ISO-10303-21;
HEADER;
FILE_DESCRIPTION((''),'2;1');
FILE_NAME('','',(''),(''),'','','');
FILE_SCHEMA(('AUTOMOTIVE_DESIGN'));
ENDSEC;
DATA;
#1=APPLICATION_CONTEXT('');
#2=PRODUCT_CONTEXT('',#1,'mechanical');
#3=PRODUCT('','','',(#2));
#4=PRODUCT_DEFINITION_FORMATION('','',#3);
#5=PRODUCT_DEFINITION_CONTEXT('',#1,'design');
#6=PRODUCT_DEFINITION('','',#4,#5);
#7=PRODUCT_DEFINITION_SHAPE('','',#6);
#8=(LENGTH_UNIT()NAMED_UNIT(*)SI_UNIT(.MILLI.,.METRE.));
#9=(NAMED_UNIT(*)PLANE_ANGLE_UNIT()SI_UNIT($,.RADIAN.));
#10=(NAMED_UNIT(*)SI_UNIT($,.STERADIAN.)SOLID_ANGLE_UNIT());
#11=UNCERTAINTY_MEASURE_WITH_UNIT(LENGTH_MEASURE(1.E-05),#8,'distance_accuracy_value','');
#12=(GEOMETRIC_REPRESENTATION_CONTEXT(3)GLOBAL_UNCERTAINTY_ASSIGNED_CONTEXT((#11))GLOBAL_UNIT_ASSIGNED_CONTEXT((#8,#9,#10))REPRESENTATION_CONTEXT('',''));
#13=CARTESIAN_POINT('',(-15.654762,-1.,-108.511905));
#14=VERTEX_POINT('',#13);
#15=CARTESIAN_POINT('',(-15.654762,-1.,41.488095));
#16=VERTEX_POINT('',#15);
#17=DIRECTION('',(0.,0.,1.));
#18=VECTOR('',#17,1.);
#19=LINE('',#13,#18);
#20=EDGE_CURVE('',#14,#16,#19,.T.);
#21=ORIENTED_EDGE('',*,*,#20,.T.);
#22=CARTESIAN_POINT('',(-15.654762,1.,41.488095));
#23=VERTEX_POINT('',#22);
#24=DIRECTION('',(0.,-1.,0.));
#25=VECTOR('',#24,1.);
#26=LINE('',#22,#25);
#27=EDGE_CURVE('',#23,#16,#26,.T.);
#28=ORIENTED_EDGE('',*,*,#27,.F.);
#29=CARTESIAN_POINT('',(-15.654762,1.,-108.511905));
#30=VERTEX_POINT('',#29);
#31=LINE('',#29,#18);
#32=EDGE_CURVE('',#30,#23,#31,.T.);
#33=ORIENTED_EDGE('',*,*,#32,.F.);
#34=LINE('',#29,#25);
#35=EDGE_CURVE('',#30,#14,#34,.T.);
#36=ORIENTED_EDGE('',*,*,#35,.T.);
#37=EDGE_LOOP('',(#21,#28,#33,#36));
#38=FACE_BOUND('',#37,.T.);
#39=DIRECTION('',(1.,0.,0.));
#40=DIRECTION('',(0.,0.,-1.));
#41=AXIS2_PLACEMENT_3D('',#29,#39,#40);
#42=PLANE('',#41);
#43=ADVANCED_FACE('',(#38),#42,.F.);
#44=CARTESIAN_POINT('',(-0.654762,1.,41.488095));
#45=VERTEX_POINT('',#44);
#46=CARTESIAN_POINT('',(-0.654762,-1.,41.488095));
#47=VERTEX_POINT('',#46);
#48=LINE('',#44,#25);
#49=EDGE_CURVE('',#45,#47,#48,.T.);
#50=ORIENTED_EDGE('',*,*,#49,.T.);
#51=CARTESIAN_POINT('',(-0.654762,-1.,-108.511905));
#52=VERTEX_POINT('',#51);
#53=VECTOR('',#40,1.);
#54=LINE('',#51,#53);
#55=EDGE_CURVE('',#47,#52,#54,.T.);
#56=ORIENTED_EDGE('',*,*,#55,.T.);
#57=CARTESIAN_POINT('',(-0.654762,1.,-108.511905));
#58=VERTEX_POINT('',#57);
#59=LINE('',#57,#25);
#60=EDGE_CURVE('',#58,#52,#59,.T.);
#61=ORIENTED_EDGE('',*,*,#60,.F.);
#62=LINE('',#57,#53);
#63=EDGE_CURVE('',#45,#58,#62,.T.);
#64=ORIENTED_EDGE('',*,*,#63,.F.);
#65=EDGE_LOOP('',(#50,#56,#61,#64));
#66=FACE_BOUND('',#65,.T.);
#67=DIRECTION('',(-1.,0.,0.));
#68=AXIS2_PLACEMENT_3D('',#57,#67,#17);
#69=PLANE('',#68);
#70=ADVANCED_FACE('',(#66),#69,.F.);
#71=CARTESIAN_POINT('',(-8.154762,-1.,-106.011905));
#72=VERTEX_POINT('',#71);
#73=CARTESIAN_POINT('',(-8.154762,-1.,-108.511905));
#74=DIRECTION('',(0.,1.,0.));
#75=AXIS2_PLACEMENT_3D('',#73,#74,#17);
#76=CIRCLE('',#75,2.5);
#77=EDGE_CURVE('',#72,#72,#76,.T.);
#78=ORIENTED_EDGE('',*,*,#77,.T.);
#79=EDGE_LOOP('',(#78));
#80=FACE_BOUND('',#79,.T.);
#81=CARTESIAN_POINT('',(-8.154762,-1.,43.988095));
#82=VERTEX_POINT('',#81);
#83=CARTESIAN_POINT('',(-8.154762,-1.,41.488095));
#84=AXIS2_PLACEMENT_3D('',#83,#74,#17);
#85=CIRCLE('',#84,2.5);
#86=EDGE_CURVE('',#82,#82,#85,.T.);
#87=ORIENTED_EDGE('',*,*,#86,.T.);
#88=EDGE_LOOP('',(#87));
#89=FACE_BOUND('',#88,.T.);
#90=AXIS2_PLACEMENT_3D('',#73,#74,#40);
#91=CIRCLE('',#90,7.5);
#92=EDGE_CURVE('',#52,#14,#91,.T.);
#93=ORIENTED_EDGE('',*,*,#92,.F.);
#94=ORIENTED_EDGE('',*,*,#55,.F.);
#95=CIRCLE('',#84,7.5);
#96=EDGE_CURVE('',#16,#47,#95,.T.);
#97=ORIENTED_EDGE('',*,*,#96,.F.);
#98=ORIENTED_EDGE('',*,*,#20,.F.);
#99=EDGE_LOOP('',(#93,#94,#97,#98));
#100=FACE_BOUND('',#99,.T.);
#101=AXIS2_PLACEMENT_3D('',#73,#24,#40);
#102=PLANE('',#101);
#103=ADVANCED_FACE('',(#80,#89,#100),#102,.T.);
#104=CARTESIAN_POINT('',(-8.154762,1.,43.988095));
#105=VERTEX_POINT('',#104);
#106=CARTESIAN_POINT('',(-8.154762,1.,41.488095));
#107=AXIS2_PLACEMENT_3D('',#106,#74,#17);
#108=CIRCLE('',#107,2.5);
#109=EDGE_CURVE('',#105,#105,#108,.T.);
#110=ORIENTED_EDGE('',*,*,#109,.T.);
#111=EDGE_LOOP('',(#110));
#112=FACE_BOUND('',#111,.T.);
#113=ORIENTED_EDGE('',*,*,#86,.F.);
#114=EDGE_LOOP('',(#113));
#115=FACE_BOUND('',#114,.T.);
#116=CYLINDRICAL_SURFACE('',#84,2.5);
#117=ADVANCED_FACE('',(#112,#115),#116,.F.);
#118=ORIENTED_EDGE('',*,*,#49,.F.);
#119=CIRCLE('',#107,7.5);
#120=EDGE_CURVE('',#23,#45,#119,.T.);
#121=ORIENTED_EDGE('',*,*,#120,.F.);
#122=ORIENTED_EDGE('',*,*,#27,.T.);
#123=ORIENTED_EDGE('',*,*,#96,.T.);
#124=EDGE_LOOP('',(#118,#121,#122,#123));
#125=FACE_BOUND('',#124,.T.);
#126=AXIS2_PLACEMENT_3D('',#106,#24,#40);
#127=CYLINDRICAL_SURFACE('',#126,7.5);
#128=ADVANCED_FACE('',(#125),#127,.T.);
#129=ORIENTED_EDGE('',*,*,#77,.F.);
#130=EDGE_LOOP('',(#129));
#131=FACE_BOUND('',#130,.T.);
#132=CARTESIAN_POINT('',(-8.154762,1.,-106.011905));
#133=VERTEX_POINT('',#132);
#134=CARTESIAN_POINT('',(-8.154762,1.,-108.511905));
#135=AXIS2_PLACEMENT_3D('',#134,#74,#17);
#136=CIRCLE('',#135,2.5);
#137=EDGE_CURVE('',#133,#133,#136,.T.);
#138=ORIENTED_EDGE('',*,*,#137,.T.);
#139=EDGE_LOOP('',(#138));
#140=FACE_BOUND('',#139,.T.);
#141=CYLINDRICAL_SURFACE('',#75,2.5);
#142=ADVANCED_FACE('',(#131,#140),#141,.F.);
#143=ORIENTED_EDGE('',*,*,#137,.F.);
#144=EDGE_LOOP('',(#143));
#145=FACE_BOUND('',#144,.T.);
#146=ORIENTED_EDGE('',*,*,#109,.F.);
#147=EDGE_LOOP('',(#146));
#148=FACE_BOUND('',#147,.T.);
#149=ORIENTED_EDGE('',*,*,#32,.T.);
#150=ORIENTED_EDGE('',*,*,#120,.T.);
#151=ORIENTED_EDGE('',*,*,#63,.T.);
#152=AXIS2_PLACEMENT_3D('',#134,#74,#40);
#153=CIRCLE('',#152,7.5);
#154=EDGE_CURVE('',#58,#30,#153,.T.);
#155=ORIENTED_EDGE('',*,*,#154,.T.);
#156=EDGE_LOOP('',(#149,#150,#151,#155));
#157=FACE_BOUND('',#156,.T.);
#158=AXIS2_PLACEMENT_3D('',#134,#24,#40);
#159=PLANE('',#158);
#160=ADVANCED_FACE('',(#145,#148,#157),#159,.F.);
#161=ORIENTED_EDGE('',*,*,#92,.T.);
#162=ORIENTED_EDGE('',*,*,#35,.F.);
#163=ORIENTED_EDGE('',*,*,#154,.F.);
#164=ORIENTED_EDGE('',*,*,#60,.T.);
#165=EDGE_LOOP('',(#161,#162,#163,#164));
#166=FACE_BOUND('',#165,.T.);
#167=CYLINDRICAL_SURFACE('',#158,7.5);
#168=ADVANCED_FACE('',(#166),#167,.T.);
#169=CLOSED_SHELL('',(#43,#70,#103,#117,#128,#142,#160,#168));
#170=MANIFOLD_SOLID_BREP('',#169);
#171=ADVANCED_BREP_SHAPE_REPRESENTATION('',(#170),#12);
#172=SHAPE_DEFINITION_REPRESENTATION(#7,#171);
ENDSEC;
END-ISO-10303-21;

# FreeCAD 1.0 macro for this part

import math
import FreeCAD as App
import Part
import Sketcher

doc = App.newDocument("Part")
body = doc.addObject("PartDesign::Body", "Body")

sketch1 = body.newObject("Sketcher::SketchObject", "Sketch")
sketch1.AttachmentSupport = (doc.getObject("XZ_Plane"), [""])
sketch1.MapMode = "FlatFace"
sketch1.addGeometry(Part.LineSegment(App.Vector(-16, -109, 0), App.Vector(-16, 41, 0)), False)
sketch1.addGeometry(Part.ArcOfCircle(Part.Circle(App.Vector(-8, 41, 0), App.Vector(0, 0, 1), 8), math.radians(0), math.radians(180)), False)
sketch1.addGeometry(Part.LineSegment(App.Vector(-1, 41, 0), App.Vector(-1, -109, 0)), False)
sketch1.addGeometry(Part.ArcOfCircle(Part.Circle(App.Vector(-8, -109, 0), App.Vector(0, 0, 1), 8), math.radians(180), math.radians(360)), False)
sketch1.addConstraint(Sketcher.Constraint("Tangent", 0, 2, 1, 2))
sketch1.addConstraint(Sketcher.Constraint("Tangent", 1, 1, 2, 1))
sketch1.addConstraint(Sketcher.Constraint("Tangent", 2, 2, 3, 2))
sketch1.addConstraint(Sketcher.Constraint("Tangent", 3, 1, 0, 1))
sketch1.addConstraint(Sketcher.Constraint("Vertical", 0))
sketch1.addConstraint(Sketcher.Constraint("Vertical", 2))
sketch1.addConstraint(Sketcher.Constraint("Radius", 1, 7.5))
sketch1.addConstraint(Sketcher.Constraint("DistanceY", 0, 1, 0, 2, 150.0))
sketch1.addConstraint(Sketcher.Constraint("DistanceX", 1, 3, -1, 1, 8.154762))
sketch1.addConstraint(Sketcher.Constraint("DistanceY", -1, 1, 1, 3, 41.488095))
pad1 = body.newObject("PartDesign::Pad", "Pad")
pad1.Profile = sketch1
pad1.Length = 2
pad1.Midplane = True

sketch2 = body.newObject("Sketcher::SketchObject", "Sketch001")
sketch2.AttachmentSupport = (doc.getObject("XZ_Plane"), [""])
sketch2.MapMode = "FlatFace"
sketch2.AttachmentOffset = App.Placement(App.Vector(0, 0, -1), App.Rotation())
sketch2.addGeometry(Part.Circle(App.Vector(-8.2, -108.5, 0), App.Vector(0, 0, 1), 2.5), False)
sketch2.addGeometry(Part.Circle(App.Vector(-8.2, 41.5, 0), App.Vector(0, 0, 1), 2.5), False)
sketch2.addConstraint(Sketcher.Constraint("Equal", 0, 1))
sketch2.addConstraint(Sketcher.Constraint("Vertical", 0, 3, 1, 3))
sketch2.addConstraint(Sketcher.Constraint("Diameter", 0, 5.0))
sketch2.addConstraint(Sketcher.Constraint("DistanceY", 0, 3, 1, 3, 150.0))
sketch2.addConstraint(Sketcher.Constraint("DistanceX", 0, 3, -1, 1, 8.154762))
sketch2.addConstraint(Sketcher.Constraint("DistanceY", 0, 3, -1, 1, 108.511905))
pocket1 = body.newObject("PartDesign::Pocket", "Pocket")
pocket1.Profile = sketch2
pocket1.Length = 2
pocket1.Reversed = True

doc.recompute()
